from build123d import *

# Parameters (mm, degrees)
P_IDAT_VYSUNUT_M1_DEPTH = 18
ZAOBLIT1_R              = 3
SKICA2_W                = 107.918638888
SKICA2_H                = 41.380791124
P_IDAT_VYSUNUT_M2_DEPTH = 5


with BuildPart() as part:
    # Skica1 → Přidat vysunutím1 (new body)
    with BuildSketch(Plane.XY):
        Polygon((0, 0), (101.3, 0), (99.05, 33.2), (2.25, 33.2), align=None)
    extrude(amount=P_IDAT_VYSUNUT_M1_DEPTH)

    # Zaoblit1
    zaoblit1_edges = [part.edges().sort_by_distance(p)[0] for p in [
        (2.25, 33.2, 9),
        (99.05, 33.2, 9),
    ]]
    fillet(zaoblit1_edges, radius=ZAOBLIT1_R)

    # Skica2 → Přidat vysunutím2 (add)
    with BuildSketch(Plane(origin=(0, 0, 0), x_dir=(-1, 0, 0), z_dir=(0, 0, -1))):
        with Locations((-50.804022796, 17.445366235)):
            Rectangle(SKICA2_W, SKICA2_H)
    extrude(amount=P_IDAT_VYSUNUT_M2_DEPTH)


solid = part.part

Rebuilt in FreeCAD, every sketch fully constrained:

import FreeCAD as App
import Part
import Sketcher

V = App.Vector
Q = App.Units.Quantity


def edges_at(feature, points):
    """Names of the edges that pass closest to the given points."""
    edges = feature.Shape.Edges
    near = lambda p: min(range(len(edges)), key=lambda i: edges[i].distToShape(Part.Vertex(*p))[0])
    return sorted({f"Edge{near(p) + 1}" for p in points})

doc = App.newDocument("Part")
params = doc.addObject("Spreadsheet::Sheet", "Params")
for row, (alias, value) in enumerate([
    ("sketch1_width", "101.3 mm"),
    ("sketch1_width2", "96.8 mm"),
    ("pad1_length", "18 mm"),
    ("fillet_radius", "3 mm"),
    ("pad2_length", "5 mm"),
], start=1):
    params.set(f"A{row}", alias)
    params.set(f"B{row}", "=" + value)
    params.setAlias(f"B{row}", alias)

body = doc.addObject("PartDesign::Body", "Body")

# Sketch on XY plane
sketch1 = body.newObject("Sketcher::SketchObject", "Sketch")
sketch1.AttachmentSupport = (doc.getObject("XY_Plane"), [""])
sketch1.MapMode = "FlatFace"
sketch1.addGeometry([
    Part.LineSegment(V(0, 0, 0), V(101, 0, 0)),
    Part.LineSegment(V(101, 0, 0), V(99, 33, 0)),
    Part.LineSegment(V(99, 33, 0), V(2, 33, 0)),
    Part.LineSegment(V(2, 33, 0), V(0, 0, 0)),
], False)
sketch1.addConstraint([
    Sketcher.Constraint("Coincident", 0, 2, 1, 1),
    Sketcher.Constraint("Coincident", 1, 2, 2, 1),
    Sketcher.Constraint("Coincident", 2, 2, 3, 1),
    Sketcher.Constraint("Coincident", 3, 2, 0, 1),
    Sketcher.Constraint("Horizontal", 0),
    Sketcher.Constraint("Horizontal", 2),
    Sketcher.Constraint("Coincident", 3, 2, -1, 1),
    Sketcher.Constraint("Equal", 1, 3),
    Sketcher.Constraint("DistanceX", 0, 1, 0, 2, Q("101.3 mm")),
    Sketcher.Constraint("DistanceX", 2, 2, 2, 1, Q("96.8 mm")),
    Sketcher.Constraint("DistanceY", -1, 1, 1, 2, Q("33.2 mm")),
])
sketch1.setExpression("Constraints[8]", "Params.sketch1_width")
sketch1.setExpression("Constraints[9]", "Params.sketch1_width2")
pad1 = body.newObject("PartDesign::Pad", "Pad")
pad1.Profile = sketch1
pad1.setExpression("Length", "Params.pad1_length")
doc.recompute()

fillet = body.newObject("PartDesign::Fillet", "Fillet")
fillet.Base = (pad1, edges_at(pad1, [(2.25, 33.2, 9), (99.05, 33.2, 9)]))
fillet.setExpression("Radius", "Params.fillet_radius")

# Sketch on XY plane
sketch2 = body.newObject("Sketcher::SketchObject", "Sketch001")
sketch2.AttachmentSupport = (doc.getObject("XY_Plane"), [""])
sketch2.MapMode = "FlatFace"
sketch2.addGeometry([
    Part.LineSegment(V(105, 38, 0), V(105, -3, 0)),
    Part.LineSegment(V(105, -3, 0), V(-3, -3, 0)),
    Part.LineSegment(V(-3, -3, 0), V(-3, 38, 0)),
    Part.LineSegment(V(-3, 38, 0), V(105, 38, 0)),
], False)
sketch2.addConstraint([
    Sketcher.Constraint("Coincident", 0, 2, 1, 1),
    Sketcher.Constraint("Coincident", 1, 2, 2, 1),
    Sketcher.Constraint("Coincident", 2, 2, 3, 1),
    Sketcher.Constraint("Coincident", 3, 2, 0, 1),
    Sketcher.Constraint("Vertical", 0),
    Sketcher.Constraint("Horizontal", 1),
    Sketcher.Constraint("Vertical", 2),
    Sketcher.Constraint("Horizontal", 3),
    Sketcher.Constraint("DistanceX", 1, 2, 1, 1, Q("107.918639 mm")),
    Sketcher.Constraint("DistanceY", 0, 2, 0, 1, Q("41.380791 mm")),
    Sketcher.Constraint("DistanceY", 0, 2, -1, 1, Q("3.245029 mm")),
    Sketcher.Constraint("DistanceX", -1, 1, 0, 2, Q("104.763342 mm")),
])
pad2 = body.newObject("PartDesign::Pad", "Pad001")
pad2.Profile = sketch2
pad2.setExpression("Length", "Params.pad2_length")
pad2.Reversed = True

doc.recompute()
